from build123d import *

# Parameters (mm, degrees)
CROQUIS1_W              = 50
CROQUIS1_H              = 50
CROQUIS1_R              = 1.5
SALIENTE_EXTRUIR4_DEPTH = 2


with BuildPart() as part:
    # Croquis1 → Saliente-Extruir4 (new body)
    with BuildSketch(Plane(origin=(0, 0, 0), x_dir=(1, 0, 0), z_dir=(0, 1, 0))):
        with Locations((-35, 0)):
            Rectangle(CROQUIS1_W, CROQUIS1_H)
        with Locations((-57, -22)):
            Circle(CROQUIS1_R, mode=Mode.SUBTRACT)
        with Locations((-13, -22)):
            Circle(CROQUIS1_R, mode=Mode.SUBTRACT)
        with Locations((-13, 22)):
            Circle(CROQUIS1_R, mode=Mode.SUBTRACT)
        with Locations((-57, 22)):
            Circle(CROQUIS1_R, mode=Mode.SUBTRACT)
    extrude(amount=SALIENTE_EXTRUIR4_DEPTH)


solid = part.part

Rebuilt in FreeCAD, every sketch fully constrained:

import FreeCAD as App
import Part
import Sketcher
Q = App.Units.Quantity

doc = App.newDocument("Part")
body = doc.addObject("PartDesign::Body", "Body")

# Sketch on XZ plane
sketch1 = body.newObject("Sketcher::SketchObject", "Sketch")
sketch1.AttachmentSupport = (doc.getObject("XZ_Plane"), [""])
sketch1.MapMode = "FlatFace"
sketch1.addGeometry(Part.LineSegment(App.Vector(-60, -25, 0), App.Vector(-60, 25, 0)), False)
sketch1.addGeometry(Part.LineSegment(App.Vector(-60, 25, 0), App.Vector(-10, 25, 0)), False)
sketch1.addGeometry(Part.LineSegment(App.Vector(-10, 25, 0), App.Vector(-10, -25, 0)), False)
sketch1.addGeometry(Part.LineSegment(App.Vector(-10, -25, 0), App.Vector(-60, -25, 0)), False)
sketch1.addGeometry(Part.Circle(App.Vector(-57, 22, 0), App.Vector(0, 0, 1), 1.5), False)
sketch1.addGeometry(Part.Circle(App.Vector(-13, 22, 0), App.Vector(0, 0, 1), 1.5), False)
sketch1.addGeometry(Part.Circle(App.Vector(-57, -22, 0), App.Vector(0, 0, 1), 1.5), False)
sketch1.addGeometry(Part.Circle(App.Vector(-13, -22, 0), App.Vector(0, 0, 1), 1.5), False)
sketch1.addConstraint(Sketcher.Constraint("Coincident", 0, 2, 1, 1))
sketch1.addConstraint(Sketcher.Constraint("Coincident", 1, 2, 2, 1))
sketch1.addConstraint(Sketcher.Constraint("Coincident", 2, 2, 3, 1))
sketch1.addConstraint(Sketcher.Constraint("Coincident", 3, 2, 0, 1))
sketch1.addConstraint(Sketcher.Constraint("Vertical", 0))
sketch1.addConstraint(Sketcher.Constraint("Horizontal", 1))
sketch1.addConstraint(Sketcher.Constraint("Vertical", 2))
sketch1.addConstraint(Sketcher.Constraint("Horizontal", 3))
sketch1.addConstraint(Sketcher.Constraint("Equal", 4, 5))
sketch1.addConstraint(Sketcher.Constraint("Equal", 5, 6))
sketch1.addConstraint(Sketcher.Constraint("Equal", 6, 7))
sketch1.addConstraint(Sketcher.Constraint("Symmetric", 4, 3, 6, 3, -1))
sketch1.addConstraint(Sketcher.Constraint("Symmetric", 5, 3, 7, 3, -1))
sketch1.addConstraint(Sketcher.Constraint("Horizontal", 4, 3, 5, 3))
sketch1.addConstraint(Sketcher.Constraint("Equal", 3, 0))
sketch1.addConstraint(Sketcher.Constraint("Diameter", 4, Q("3 mm")))
sketch1.addConstraint(Sketcher.Constraint("DistanceX", 1, 1, 1, 2, Q("50 mm")))
sketch1.addConstraint(Sketcher.Constraint("DistanceX", 4, 3, -1, 1, Q("57 mm")))
sketch1.addConstraint(Sketcher.Constraint("DistanceY", -1, 1, 4, 3, Q("22 mm")))
sketch1.addConstraint(Sketcher.Constraint("DistanceX", 5, 3, -1, 1, Q("13 mm")))
sketch1.addConstraint(Sketcher.Constraint("DistanceX", 0, 2, -1, 1, Q("60 mm")))
sketch1.addConstraint(Sketcher.Constraint("DistanceY", -1, 1, 0, 2, Q("25 mm")))
pad1 = body.newObject("PartDesign::Pad", "Pad")
pad1.Profile = sketch1
pad1.Length = 2
pad1.Reversed = True

doc.recompute()
